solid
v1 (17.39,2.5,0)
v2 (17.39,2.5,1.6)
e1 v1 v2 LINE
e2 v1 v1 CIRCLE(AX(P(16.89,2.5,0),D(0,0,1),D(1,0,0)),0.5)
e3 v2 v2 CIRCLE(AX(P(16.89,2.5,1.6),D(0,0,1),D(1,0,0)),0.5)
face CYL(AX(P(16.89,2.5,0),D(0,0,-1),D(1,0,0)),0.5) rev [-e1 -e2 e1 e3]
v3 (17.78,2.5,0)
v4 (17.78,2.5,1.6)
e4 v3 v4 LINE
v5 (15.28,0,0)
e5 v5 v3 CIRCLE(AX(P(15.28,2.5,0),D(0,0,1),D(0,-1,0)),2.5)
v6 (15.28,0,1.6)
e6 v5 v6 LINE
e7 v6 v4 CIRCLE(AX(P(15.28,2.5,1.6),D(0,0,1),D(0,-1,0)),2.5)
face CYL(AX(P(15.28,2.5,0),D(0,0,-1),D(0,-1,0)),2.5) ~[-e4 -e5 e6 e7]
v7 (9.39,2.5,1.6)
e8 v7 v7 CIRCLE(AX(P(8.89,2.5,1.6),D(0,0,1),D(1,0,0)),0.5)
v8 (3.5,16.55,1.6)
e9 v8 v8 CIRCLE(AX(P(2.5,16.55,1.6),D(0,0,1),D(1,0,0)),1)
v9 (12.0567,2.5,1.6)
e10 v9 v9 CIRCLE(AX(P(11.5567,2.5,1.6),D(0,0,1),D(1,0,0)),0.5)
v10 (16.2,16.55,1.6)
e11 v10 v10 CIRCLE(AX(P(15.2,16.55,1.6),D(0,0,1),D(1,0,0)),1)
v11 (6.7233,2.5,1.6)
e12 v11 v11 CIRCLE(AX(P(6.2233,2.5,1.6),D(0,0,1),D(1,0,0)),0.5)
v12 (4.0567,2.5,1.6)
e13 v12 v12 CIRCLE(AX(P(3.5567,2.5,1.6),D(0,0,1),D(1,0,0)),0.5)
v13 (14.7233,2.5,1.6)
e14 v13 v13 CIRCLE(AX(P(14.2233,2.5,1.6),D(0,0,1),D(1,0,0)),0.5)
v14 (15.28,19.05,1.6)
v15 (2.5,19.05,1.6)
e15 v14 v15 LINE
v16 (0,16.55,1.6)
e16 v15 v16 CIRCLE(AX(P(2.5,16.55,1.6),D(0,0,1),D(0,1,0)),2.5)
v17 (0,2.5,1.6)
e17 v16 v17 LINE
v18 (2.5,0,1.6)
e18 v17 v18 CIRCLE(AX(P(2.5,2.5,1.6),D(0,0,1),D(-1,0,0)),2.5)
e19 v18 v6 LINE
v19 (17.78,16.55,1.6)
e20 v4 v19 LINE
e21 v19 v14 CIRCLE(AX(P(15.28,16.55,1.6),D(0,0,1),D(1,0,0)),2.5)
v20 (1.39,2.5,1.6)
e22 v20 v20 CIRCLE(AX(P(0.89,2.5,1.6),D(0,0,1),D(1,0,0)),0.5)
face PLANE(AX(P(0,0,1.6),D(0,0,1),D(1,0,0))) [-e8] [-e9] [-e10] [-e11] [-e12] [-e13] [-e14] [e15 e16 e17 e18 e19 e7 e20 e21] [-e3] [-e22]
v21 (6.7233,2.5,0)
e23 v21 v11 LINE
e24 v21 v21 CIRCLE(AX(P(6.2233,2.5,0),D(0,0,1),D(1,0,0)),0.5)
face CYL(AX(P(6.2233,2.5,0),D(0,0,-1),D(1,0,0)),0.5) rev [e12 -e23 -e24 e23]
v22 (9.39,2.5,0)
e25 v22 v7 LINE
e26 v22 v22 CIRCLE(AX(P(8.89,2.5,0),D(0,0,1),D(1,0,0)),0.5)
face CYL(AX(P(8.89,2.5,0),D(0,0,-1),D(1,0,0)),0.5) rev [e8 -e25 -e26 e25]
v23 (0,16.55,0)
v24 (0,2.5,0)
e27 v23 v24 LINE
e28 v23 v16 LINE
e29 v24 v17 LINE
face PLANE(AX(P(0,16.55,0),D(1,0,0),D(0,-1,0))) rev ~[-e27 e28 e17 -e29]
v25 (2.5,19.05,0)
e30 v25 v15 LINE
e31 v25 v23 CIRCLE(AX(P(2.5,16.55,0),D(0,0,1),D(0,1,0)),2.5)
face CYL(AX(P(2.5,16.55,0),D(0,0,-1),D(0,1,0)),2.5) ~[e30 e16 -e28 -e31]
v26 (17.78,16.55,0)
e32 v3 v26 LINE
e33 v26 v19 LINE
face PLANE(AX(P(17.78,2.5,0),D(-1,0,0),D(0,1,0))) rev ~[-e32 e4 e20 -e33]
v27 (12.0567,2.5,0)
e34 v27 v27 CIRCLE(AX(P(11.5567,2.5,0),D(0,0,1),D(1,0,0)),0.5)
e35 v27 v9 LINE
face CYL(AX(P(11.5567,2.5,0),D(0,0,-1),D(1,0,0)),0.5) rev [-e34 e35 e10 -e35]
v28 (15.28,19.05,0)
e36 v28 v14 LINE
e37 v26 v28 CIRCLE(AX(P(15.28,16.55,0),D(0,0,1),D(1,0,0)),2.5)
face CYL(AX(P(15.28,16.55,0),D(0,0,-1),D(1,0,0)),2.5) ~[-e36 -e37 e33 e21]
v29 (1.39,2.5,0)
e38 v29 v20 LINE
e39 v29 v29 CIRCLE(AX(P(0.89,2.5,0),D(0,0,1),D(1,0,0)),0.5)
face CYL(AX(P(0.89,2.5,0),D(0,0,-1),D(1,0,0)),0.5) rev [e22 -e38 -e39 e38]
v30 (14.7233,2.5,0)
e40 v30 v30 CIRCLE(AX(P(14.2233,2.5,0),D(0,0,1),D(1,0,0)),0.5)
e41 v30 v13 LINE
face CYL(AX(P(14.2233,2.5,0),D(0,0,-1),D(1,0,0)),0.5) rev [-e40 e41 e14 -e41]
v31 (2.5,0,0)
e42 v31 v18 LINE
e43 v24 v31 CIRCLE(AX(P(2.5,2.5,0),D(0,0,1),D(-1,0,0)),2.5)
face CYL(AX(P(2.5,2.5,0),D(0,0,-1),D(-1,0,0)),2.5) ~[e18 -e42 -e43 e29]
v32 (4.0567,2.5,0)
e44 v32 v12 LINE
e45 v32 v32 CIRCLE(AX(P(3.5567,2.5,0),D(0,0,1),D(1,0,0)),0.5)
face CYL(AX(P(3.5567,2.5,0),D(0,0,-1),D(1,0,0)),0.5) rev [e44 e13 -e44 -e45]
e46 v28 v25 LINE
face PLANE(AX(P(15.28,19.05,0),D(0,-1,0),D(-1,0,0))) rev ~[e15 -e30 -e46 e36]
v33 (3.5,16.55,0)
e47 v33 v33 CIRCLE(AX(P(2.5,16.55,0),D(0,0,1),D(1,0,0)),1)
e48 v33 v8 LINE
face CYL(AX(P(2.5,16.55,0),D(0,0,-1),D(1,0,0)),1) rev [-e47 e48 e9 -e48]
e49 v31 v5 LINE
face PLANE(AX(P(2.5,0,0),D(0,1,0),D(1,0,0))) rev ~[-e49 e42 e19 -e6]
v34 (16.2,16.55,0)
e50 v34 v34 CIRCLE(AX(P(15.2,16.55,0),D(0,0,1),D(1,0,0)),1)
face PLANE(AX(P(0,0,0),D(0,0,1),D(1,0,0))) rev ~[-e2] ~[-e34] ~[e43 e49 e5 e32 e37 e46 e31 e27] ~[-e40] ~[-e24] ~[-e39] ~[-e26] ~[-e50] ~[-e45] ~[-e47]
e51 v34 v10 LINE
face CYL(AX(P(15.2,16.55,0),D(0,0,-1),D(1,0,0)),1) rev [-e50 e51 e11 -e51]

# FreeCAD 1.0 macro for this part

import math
import FreeCAD as App
import Part
import Sketcher

doc = App.newDocument("Part")
body = doc.addObject("PartDesign::Body", "Body")

sketch1 = body.newObject("Sketcher::SketchObject", "Sketch")
sketch1.AttachmentSupport = (doc.getObject("XY_Plane"), [""])
sketch1.MapMode = "FlatFace"
sketch1.addGeometry(Part.ArcOfCircle(Part.Circle(App.Vector(2.5, 2.5, 0), App.Vector(0, 0, 1), 2.5), math.radians(180), math.radians(270)), False)
sketch1.addGeometry(Part.LineSegment(App.Vector(2.5, 0, 0), App.Vector(15.3, 0, 0)), False)
sketch1.addGeometry(Part.ArcOfCircle(Part.Circle(App.Vector(15.3, 2.5, 0), App.Vector(0, 0, 1), 2.5), math.radians(-90), math.radians(0)), False)
sketch1.addGeometry(Part.LineSegment(App.Vector(17.8, 2.5, 0), App.Vector(17.8, 16.6, 0)), False)
sketch1.addGeometry(Part.ArcOfCircle(Part.Circle(App.Vector(15.3, 16.6, 0), App.Vector(0, 0, 1), 2.5), math.radians(0), math.radians(90)), False)
sketch1.addGeometry(Part.LineSegment(App.Vector(15.3, 19.1, 0), App.Vector(2.5, 19.1, 0)), False)
sketch1.addGeometry(Part.ArcOfCircle(Part.Circle(App.Vector(2.5, 16.6, 0), App.Vector(0, 0, 1), 2.5), math.radians(90), math.radians(180)), False)
sketch1.addGeometry(Part.LineSegment(App.Vector(0, 16.6, 0), App.Vector(0, 2.5, 0)), False)
sketch1.addGeometry(Part.Circle(App.Vector(0.9, 2.5, 0), App.Vector(0, 0, 1), 0.5), False)
sketch1.addGeometry(Part.Circle(App.Vector(3.6, 2.5, 0), App.Vector(0, 0, 1), 0.5), False)
sketch1.addGeometry(Part.Circle(App.Vector(6.2, 2.5, 0), App.Vector(0, 0, 1), 0.5), False)
sketch1.addGeometry(Part.Circle(App.Vector(8.9, 2.5, 0), App.Vector(0, 0, 1), 0.5), False)
sketch1.addGeometry(Part.Circle(App.Vector(11.6, 2.5, 0), App.Vector(0, 0, 1), 0.5), False)
sketch1.addGeometry(Part.Circle(App.Vector(14.2, 2.5, 0), App.Vector(0, 0, 1), 0.5), False)
sketch1.addGeometry(Part.Circle(App.Vector(16.9, 2.5, 0), App.Vector(0, 0, 1), 0.5), False)
sketch1.addGeometry(Part.Circle(App.Vector(2.5, 16.6, 0), App.Vector(0, 0, 1), 1), False)
sketch1.addGeometry(Part.Circle(App.Vector(15.2, 16.6, 0), App.Vector(0, 0, 1), 1), False)
sketch1.addConstraint(Sketcher.Constraint("Tangent", 0, 2, 1, 1))
sketch1.addConstraint(Sketcher.Constraint("Tangent", 1, 2, 2, 1))
sketch1.addConstraint(Sketcher.Constraint("Tangent", 2, 2, 3, 1))
sketch1.addConstraint(Sketcher.Constraint("Tangent", 3, 2, 4, 1))
sketch1.addConstraint(Sketcher.Constraint("Tangent", 4, 2, 5, 1))
sketch1.addConstraint(Sketcher.Constraint("Tangent", 5, 2, 6, 1))
sketch1.addConstraint(Sketcher.Constraint("Tangent", 6, 2, 7, 1))
sketch1.addConstraint(Sketcher.Constraint("Tangent", 7, 2, 0, 1))
sketch1.addConstraint(Sketcher.Constraint("Horizontal", 1))
sketch1.addConstraint(Sketcher.Constraint("Vertical", 3))
sketch1.addConstraint(Sketcher.Constraint("Horizontal", 5))
sketch1.addConstraint(Sketcher.Constraint("Vertical", 7))
sketch1.addConstraint(Sketcher.Constraint("Coincident", 15, 3, 6, 3))
sketch1.addConstraint(Sketcher.Constraint("Equal", 0, 2))
sketch1.addConstraint(Sketcher.Constraint("Equal", 2, 4))
sketch1.addConstraint(Sketcher.Constraint("Equal", 4, 6))
sketch1.addConstraint(Sketcher.Constraint("Equal", 8, 9))
sketch1.addConstraint(Sketcher.Constraint("Equal", 9, 10))
sketch1.addConstraint(Sketcher.Constraint("Equal", 10, 11))
sketch1.addConstraint(Sketcher.Constraint("Equal", 11, 12))
sketch1.addConstraint(Sketcher.Constraint("Equal", 12, 13))
sketch1.addConstraint(Sketcher.Constraint("Equal", 13, 14))
sketch1.addConstraint(Sketcher.Constraint("Equal", 15, 16))
sketch1.addConstraint(Sketcher.Constraint("PointOnObject", 0, 2, -1))
sketch1.addConstraint(Sketcher.Constraint("PointOnObject", 6, 2, -2))
sketch1.addConstraint(Sketcher.Constraint("Horizontal", 2, 3, 8, 3))
sketch1.addConstraint(Sketcher.Constraint("Horizontal", 8, 3, 9, 3))
sketch1.addConstraint(Sketcher.Constraint("Horizontal", 9, 3, 10, 3))
sketch1.addConstraint(Sketcher.Constraint("Horizontal", 10, 3, 11, 3))
sketch1.addConstraint(Sketcher.Constraint("Horizontal", 11, 3, 12, 3))
sketch1.addConstraint(Sketcher.Constraint("Horizontal", 12, 3, 13, 3))
sketch1.addConstraint(Sketcher.Constraint("Horizontal", 13, 3, 14, 3))
sketch1.addConstraint(Sketcher.Constraint("Horizontal", 15, 3, 16, 3))
sketch1.addConstraint(Sketcher.Constraint("Diameter", 8, 1.0))
sketch1.addConstraint(Sketcher.Constraint("Diameter", 15, 2.0))
sketch1.addConstraint(Sketcher.Constraint("Radius", 0, 2.5))
sketch1.addConstraint(Sketcher.Constraint("DistanceX", 6, 3, 16, 3, 12.7))
sketch1.addConstraint(Sketcher.Constraint("DistanceX", -1, 1, 11, 3, 8.89))
sketch1.addConstraint(Sketcher.Constraint("DistanceX", -1, 1, 2, 2, 17.78))
sketch1.addConstraint(Sketcher.Constraint("DistanceY", -1, 1, 4, 2, 19.05))
sketch1.addConstraint(Sketcher.Constraint("DistanceX", 8, 3, 11, 3, 8.0))
sketch1.addConstraint(Sketcher.Constraint("DistanceX", 9, 3, 12, 3, 8.0))
sketch1.addConstraint(Sketcher.Constraint("DistanceX", 10, 3, 13, 3, 8.0))
sketch1.addConstraint(Sketcher.Constraint("DistanceX", 11, 3, 14, 3, 8.0))
sketch1.addConstraint(Sketcher.Constraint("DistanceX", -1, 1, 9, 3, 3.5567))
sketch1.addConstraint(Sketcher.Constraint("DistanceX", -1, 1, 10, 3, 6.2233))
pad1 = body.newObject("PartDesign::Pad", "Pad")
pad1.Profile = sketch1
pad1.Length = 1.6

doc.recompute()
